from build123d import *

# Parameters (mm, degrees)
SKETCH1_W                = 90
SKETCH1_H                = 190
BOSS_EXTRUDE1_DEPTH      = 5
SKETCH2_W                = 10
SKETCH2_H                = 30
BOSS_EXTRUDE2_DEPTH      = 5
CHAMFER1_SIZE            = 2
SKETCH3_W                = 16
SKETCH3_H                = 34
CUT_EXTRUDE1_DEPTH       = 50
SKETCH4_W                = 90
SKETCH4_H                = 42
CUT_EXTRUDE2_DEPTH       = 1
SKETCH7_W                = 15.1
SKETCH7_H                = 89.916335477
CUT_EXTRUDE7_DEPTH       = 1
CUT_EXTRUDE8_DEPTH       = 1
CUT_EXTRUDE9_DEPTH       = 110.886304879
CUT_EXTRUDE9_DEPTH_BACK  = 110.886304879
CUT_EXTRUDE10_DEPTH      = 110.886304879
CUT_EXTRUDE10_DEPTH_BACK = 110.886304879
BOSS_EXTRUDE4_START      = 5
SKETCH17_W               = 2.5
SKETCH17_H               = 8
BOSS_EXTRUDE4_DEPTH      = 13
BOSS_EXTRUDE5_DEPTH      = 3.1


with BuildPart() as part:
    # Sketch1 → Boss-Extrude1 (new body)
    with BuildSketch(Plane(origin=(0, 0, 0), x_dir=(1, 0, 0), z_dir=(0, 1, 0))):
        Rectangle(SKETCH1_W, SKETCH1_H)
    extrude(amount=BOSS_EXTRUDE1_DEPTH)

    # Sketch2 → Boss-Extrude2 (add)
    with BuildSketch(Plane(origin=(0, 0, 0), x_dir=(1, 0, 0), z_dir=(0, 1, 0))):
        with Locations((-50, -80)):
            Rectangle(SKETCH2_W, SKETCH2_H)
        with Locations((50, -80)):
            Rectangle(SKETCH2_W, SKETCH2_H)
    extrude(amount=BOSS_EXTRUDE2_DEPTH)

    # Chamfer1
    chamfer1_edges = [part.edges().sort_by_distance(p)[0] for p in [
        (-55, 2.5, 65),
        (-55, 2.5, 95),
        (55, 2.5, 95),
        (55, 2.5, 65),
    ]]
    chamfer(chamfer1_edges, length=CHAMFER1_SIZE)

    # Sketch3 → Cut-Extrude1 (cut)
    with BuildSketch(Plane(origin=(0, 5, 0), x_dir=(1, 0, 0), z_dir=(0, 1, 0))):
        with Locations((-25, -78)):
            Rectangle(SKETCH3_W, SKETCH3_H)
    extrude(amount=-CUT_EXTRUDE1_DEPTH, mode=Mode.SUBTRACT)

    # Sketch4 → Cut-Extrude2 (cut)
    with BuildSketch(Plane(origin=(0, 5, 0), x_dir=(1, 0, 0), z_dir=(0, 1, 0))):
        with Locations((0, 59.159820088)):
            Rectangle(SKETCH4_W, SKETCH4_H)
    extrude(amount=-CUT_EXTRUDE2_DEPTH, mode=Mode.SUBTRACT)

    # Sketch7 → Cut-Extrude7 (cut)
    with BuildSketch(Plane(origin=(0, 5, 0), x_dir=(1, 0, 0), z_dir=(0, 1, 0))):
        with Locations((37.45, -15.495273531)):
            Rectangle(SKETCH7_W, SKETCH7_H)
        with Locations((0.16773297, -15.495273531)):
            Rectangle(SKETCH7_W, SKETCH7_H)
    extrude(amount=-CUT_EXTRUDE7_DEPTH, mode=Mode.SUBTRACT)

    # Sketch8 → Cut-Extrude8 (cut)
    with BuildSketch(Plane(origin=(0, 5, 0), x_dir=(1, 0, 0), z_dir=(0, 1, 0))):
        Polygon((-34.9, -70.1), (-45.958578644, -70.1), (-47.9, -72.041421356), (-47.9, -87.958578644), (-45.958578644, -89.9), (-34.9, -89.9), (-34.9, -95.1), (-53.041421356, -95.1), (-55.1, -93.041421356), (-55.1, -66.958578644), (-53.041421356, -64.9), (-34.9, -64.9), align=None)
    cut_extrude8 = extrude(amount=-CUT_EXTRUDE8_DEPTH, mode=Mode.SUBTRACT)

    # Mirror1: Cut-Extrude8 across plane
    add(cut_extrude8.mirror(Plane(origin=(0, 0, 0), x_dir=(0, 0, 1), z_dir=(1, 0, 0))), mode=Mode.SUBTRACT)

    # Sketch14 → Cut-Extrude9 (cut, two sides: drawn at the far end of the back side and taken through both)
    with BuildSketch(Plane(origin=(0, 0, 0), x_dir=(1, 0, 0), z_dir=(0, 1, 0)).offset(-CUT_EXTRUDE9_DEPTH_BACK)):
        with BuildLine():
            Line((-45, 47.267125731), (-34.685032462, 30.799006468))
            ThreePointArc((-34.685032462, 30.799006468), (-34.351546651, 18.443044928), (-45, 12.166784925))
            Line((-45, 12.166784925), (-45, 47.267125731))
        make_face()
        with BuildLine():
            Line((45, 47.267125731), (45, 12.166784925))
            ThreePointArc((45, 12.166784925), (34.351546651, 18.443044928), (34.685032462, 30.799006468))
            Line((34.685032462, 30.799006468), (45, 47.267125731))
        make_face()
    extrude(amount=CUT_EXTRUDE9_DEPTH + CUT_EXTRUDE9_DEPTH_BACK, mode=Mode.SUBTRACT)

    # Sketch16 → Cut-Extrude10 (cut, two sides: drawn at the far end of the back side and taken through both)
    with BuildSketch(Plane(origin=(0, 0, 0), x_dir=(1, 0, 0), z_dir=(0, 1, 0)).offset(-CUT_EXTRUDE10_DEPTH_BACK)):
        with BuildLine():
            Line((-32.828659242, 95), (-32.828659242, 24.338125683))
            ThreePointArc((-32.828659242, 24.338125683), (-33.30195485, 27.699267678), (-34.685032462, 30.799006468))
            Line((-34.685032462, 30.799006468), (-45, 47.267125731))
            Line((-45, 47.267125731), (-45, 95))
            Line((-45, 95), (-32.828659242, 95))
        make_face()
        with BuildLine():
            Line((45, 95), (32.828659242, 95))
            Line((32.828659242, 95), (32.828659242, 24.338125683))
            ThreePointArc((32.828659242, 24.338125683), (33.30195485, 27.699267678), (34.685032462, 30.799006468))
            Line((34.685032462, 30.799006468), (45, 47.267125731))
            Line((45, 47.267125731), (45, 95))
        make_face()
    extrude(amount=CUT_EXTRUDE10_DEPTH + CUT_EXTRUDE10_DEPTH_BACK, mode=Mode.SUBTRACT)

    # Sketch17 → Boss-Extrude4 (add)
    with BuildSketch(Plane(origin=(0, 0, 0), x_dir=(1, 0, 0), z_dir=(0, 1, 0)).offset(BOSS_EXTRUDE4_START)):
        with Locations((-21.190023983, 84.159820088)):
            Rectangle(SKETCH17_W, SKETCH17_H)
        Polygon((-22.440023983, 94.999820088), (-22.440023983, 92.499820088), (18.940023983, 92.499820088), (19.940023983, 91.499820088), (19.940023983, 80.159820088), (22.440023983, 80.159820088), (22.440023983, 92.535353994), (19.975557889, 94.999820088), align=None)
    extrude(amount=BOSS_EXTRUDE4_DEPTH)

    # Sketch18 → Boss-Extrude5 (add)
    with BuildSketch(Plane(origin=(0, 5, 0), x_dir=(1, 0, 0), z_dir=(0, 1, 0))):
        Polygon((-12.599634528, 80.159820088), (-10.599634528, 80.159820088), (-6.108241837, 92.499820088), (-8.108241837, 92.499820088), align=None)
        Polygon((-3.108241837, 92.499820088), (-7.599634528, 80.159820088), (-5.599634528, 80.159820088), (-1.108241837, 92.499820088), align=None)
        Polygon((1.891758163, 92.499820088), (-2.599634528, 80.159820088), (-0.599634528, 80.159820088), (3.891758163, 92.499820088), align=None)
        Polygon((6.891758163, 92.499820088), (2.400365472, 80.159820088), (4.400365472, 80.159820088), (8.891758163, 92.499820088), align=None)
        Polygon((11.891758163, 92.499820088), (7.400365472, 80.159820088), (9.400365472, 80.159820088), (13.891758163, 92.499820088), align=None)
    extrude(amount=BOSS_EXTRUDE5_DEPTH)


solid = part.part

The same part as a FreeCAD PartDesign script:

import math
import FreeCAD as App
import Part
import Sketcher
Q = App.Units.Quantity


def edges_at(feature, points):
    """Names of the edges that pass closest to the given points."""
    edges = feature.Shape.Edges
    near = lambda p: min(range(len(edges)), key=lambda i: edges[i].distToShape(Part.Vertex(*p))[0])
    return sorted({f"Edge{near(p) + 1}" for p in points})

doc = App.newDocument("Part")
body = doc.addObject("PartDesign::Body", "Body")

sketch1 = body.newObject("Sketcher::SketchObject", "Sketch")
sketch1.AttachmentSupport = (doc.getObject("XZ_Plane"), [""])
sketch1.MapMode = "FlatFace"
sketch1.addGeometry(Part.LineSegment(App.Vector(-45, -95, 0), App.Vector(-45, 95, 0)), False)
sketch1.addGeometry(Part.LineSegment(App.Vector(-45, 95, 0), App.Vector(45, 95, 0)), False)
sketch1.addGeometry(Part.LineSegment(App.Vector(45, 95, 0), App.Vector(45, -95, 0)), False)
sketch1.addGeometry(Part.LineSegment(App.Vector(45, -95, 0), App.Vector(-45, -95, 0)), False)
sketch1.addConstraint(Sketcher.Constraint("Coincident", 0, 2, 1, 1))
sketch1.addConstraint(Sketcher.Constraint("Coincident", 1, 2, 2, 1))
sketch1.addConstraint(Sketcher.Constraint("Coincident", 2, 2, 3, 1))
sketch1.addConstraint(Sketcher.Constraint("Coincident", 3, 2, 0, 1))
sketch1.addConstraint(Sketcher.Constraint("Vertical", 0))
sketch1.addConstraint(Sketcher.Constraint("Horizontal", 1))
sketch1.addConstraint(Sketcher.Constraint("Vertical", 2))
sketch1.addConstraint(Sketcher.Constraint("Horizontal", 3))
sketch1.addConstraint(Sketcher.Constraint("Symmetric", 0, 2, 2, 2, -1, 1))
sketch1.addConstraint(Sketcher.Constraint("DistanceX", 1, 1, 1, 2, Q("90 mm")))
sketch1.addConstraint(Sketcher.Constraint("DistanceY", 0, 1, 0, 2, Q("190 mm")))
pad1 = body.newObject("PartDesign::Pad", "Pad")
pad1.Profile = sketch1
pad1.Length = 5
pad1.Reversed = True

sketch2 = body.newObject("Sketcher::SketchObject", "Sketch001")
sketch2.AttachmentSupport = (doc.getObject("XZ_Plane"), [""])
sketch2.MapMode = "FlatFace"
sketch2.addGeometry(Part.LineSegment(App.Vector(-55, 65, 0), App.Vector(-55, 95, 0)), False)
sketch2.addGeometry(Part.LineSegment(App.Vector(-55, 95, 0), App.Vector(-45, 95, 0)), False)
sketch2.addGeometry(Part.LineSegment(App.Vector(-45, 95, 0), App.Vector(-45, 65, 0)), False)
sketch2.addGeometry(Part.LineSegment(App.Vector(-45, 65, 0), App.Vector(-55, 65, 0)), False)
sketch2.addGeometry(Part.LineSegment(App.Vector(45, 65, 0), App.Vector(45, 95, 0)), False)
sketch2.addGeometry(Part.LineSegment(App.Vector(45, 95, 0), App.Vector(55, 95, 0)), False)
sketch2.addGeometry(Part.LineSegment(App.Vector(55, 95, 0), App.Vector(55, 65, 0)), False)
sketch2.addGeometry(Part.LineSegment(App.Vector(55, 65, 0), App.Vector(45, 65, 0)), False)
sketch2.addConstraint(Sketcher.Constraint("Coincident", 0, 2, 1, 1))
sketch2.addConstraint(Sketcher.Constraint("Coincident", 1, 2, 2, 1))
sketch2.addConstraint(Sketcher.Constraint("Coincident", 2, 2, 3, 1))
sketch2.addConstraint(Sketcher.Constraint("Coincident", 3, 2, 0, 1))
sketch2.addConstraint(Sketcher.Constraint("Coincident", 4, 2, 5, 1))
sketch2.addConstraint(Sketcher.Constraint("Coincident", 5, 2, 6, 1))
sketch2.addConstraint(Sketcher.Constraint("Coincident", 6, 2, 7, 1))
sketch2.addConstraint(Sketcher.Constraint("Coincident", 7, 2, 4, 1))
sketch2.addConstraint(Sketcher.Constraint("Vertical", 0))
sketch2.addConstraint(Sketcher.Constraint("Horizontal", 1))
sketch2.addConstraint(Sketcher.Constraint("Vertical", 2))
sketch2.addConstraint(Sketcher.Constraint("Horizontal", 3))
sketch2.addConstraint(Sketcher.Constraint("Vertical", 4))
sketch2.addConstraint(Sketcher.Constraint("Horizontal", 5))
sketch2.addConstraint(Sketcher.Constraint("Vertical", 6))
sketch2.addConstraint(Sketcher.Constraint("Horizontal", 7))
sketch2.addConstraint(Sketcher.Constraint("Symmetric", 1, 2, 4, 2, -2))
sketch2.addConstraint(Sketcher.Constraint("Symmetric", 3, 2, 6, 2, -2))
sketch2.addConstraint(Sketcher.Constraint("DistanceX", 1, 1, 1, 2, Q("10 mm")))
sketch2.addConstraint(Sketcher.Constraint("DistanceY", 0, 1, 0, 2, Q("30 mm")))
sketch2.addConstraint(Sketcher.Constraint("DistanceX", 0, 2, -1, 1, Q("55 mm")))
sketch2.addConstraint(Sketcher.Constraint("DistanceY", -1, 1, 0, 2, Q("95 mm")))
pad2 = body.newObject("PartDesign::Pad", "Pad001")
pad2.Profile = sketch2
pad2.Length = 5
pad2.Reversed = True
doc.recompute()

chamfer = body.newObject("PartDesign::Chamfer", "Chamfer")
chamfer.Base = (pad2, edges_at(pad2, [
    (-55, 2.5, 65),
    (-55, 2.5, 95),
    (55, 2.5, 95),
    (55, 2.5, 65),
]))
chamfer.Size = 2

sketch3 = body.newObject("Sketcher::SketchObject", "Sketch002")
sketch3.AttachmentSupport = (doc.getObject("XZ_Plane"), [""])
sketch3.MapMode = "FlatFace"
sketch3.AttachmentOffset = App.Placement(App.Vector(0, 0, -5), App.Rotation())
sketch3.addGeometry(Part.LineSegment(App.Vector(-33, 61, 0), App.Vector(-33, 95, 0)), False)
sketch3.addGeometry(Part.LineSegment(App.Vector(-33, 95, 0), App.Vector(-17, 95, 0)), False)
sketch3.addGeometry(Part.LineSegment(App.Vector(-17, 95, 0), App.Vector(-17, 61, 0)), False)
sketch3.addGeometry(Part.LineSegment(App.Vector(-17, 61, 0), App.Vector(-33, 61, 0)), False)
sketch3.addConstraint(Sketcher.Constraint("Coincident", 0, 2, 1, 1))
sketch3.addConstraint(Sketcher.Constraint("Coincident", 1, 2, 2, 1))
sketch3.addConstraint(Sketcher.Constraint("Coincident", 2, 2, 3, 1))
sketch3.addConstraint(Sketcher.Constraint("Coincident", 3, 2, 0, 1))
sketch3.addConstraint(Sketcher.Constraint("Vertical", 0))
sketch3.addConstraint(Sketcher.Constraint("Horizontal", 1))
sketch3.addConstraint(Sketcher.Constraint("Vertical", 2))
sketch3.addConstraint(Sketcher.Constraint("Horizontal", 3))
sketch3.addConstraint(Sketcher.Constraint("DistanceX", 1, 1, 1, 2, Q("16 mm")))
sketch3.addConstraint(Sketcher.Constraint("DistanceY", 0, 1, 0, 2, Q("34 mm")))
sketch3.addConstraint(Sketcher.Constraint("DistanceX", 0, 2, -1, 1, Q("33 mm")))
sketch3.addConstraint(Sketcher.Constraint("DistanceY", -1, 1, 0, 2, Q("95 mm")))
pocket1 = body.newObject("PartDesign::Pocket", "Pocket")
pocket1.Profile = sketch3
pocket1.Length = 50
pocket1.Reversed = True

sketch4 = body.newObject("Sketcher::SketchObject", "Sketch003")
sketch4.AttachmentSupport = (doc.getObject("XZ_Plane"), [""])
sketch4.MapMode = "FlatFace"
sketch4.AttachmentOffset = App.Placement(App.Vector(0, 0, -5), App.Rotation())
sketch4.addGeometry(Part.LineSegment(App.Vector(-45, -80.15982, 0), App.Vector(-45, -38.15982, 0)), False)
sketch4.addGeometry(Part.LineSegment(App.Vector(-45, -38.15982, 0), App.Vector(45, -38.15982, 0)), False)
sketch4.addGeometry(Part.LineSegment(App.Vector(45, -38.15982, 0), App.Vector(45, -80.15982, 0)), False)
sketch4.addGeometry(Part.LineSegment(App.Vector(45, -80.15982, 0), App.Vector(-45, -80.15982, 0)), False)
sketch4.addConstraint(Sketcher.Constraint("Coincident", 0, 2, 1, 1))
sketch4.addConstraint(Sketcher.Constraint("Coincident", 1, 2, 2, 1))
sketch4.addConstraint(Sketcher.Constraint("Coincident", 2, 2, 3, 1))
sketch4.addConstraint(Sketcher.Constraint("Coincident", 3, 2, 0, 1))
sketch4.addConstraint(Sketcher.Constraint("Vertical", 0))
sketch4.addConstraint(Sketcher.Constraint("Horizontal", 1))
sketch4.addConstraint(Sketcher.Constraint("Vertical", 2))
sketch4.addConstraint(Sketcher.Constraint("Horizontal", 3))
sketch4.addConstraint(Sketcher.Constraint("DistanceX", 1, 1, 1, 2, Q("90 mm")))
sketch4.addConstraint(Sketcher.Constraint("DistanceY", 0, 1, 0, 2, Q("42 mm")))
sketch4.addConstraint(Sketcher.Constraint("DistanceX", 0, 2, -1, 1, Q("45 mm")))
sketch4.addConstraint(Sketcher.Constraint("DistanceY", 0, 2, -1, 1, Q("38.15982 mm")))
pocket2 = body.newObject("PartDesign::Pocket", "Pocket001")
pocket2.Profile = sketch4
pocket2.Length = 1
pocket2.Reversed = True

sketch5 = body.newObject("Sketcher::SketchObject", "Sketch004")
sketch5.AttachmentSupport = (doc.getObject("XZ_Plane"), [""])
sketch5.MapMode = "FlatFace"
sketch5.AttachmentOffset = App.Placement(App.Vector(0, 0, -5), App.Rotation())
sketch5.addGeometry(Part.LineSegment(App.Vector(29.9, -29.462894, 0), App.Vector(29.9, 60.453441, 0)), False)
sketch5.addGeometry(Part.LineSegment(App.Vector(29.9, 60.453441, 0), App.Vector(45, 60.453441, 0)), False)
sketch5.addGeometry(Part.LineSegment(App.Vector(45, 60.453441, 0), App.Vector(45, -29.462894, 0)), False)
sketch5.addGeometry(Part.LineSegment(App.Vector(45, -29.462894, 0), App.Vector(29.9, -29.462894, 0)), False)
sketch5.addGeometry(Part.LineSegment(App.Vector(-7.382267, -29.462894, 0), App.Vector(-7.382267, 60.453441, 0)), False)
sketch5.addGeometry(Part.LineSegment(App.Vector(-7.382267, 60.453441, 0), App.Vector(7.717733, 60.453441, 0)), False)
sketch5.addGeometry(Part.LineSegment(App.Vector(7.717733, 60.453441, 0), App.Vector(7.717733, -29.462894, 0)), False)
sketch5.addGeometry(Part.LineSegment(App.Vector(7.717733, -29.462894, 0), App.Vector(-7.382267, -29.462894, 0)), False)
sketch5.addConstraint(Sketcher.Constraint("Coincident", 0, 2, 1, 1))
sketch5.addConstraint(Sketcher.Constraint("Coincident", 1, 2, 2, 1))
sketch5.addConstraint(Sketcher.Constraint("Coincident", 2, 2, 3, 1))
sketch5.addConstraint(Sketcher.Constraint("Coincident", 3, 2, 0, 1))
sketch5.addConstraint(Sketcher.Constraint("Coincident", 4, 2, 5, 1))
sketch5.addConstraint(Sketcher.Constraint("Coincident", 5, 2, 6, 1))
sketch5.addConstraint(Sketcher.Constraint("Coincident", 6, 2, 7, 1))
sketch5.addConstraint(Sketcher.Constraint("Coincident", 7, 2, 4, 1))
sketch5.addConstraint(Sketcher.Constraint("Vertical", 0))
sketch5.addConstraint(Sketcher.Constraint("Horizontal", 1))
sketch5.addConstraint(Sketcher.Constraint("Vertical", 2))
sketch5.addConstraint(Sketcher.Constraint("Horizontal", 3))
sketch5.addConstraint(Sketcher.Constraint("Vertical", 4))
sketch5.addConstraint(Sketcher.Constraint("Horizontal", 5))
sketch5.addConstraint(Sketcher.Constraint("Vertical", 6))
sketch5.addConstraint(Sketcher.Constraint("Horizontal", 7))
sketch5.addConstraint(Sketcher.Constraint("Horizontal", 1, 2, 4, 2))
sketch5.addConstraint(Sketcher.Constraint("Horizontal", 3, 2, 6, 2))
sketch5.addConstraint(Sketcher.Constraint("Equal", 3, 5))
sketch5.addConstraint(Sketcher.Constraint("DistanceX", 1, 1, 1, 2, Q("15.1 mm")))
sketch5.addConstraint(Sketcher.Constraint("DistanceX", -1, 1, 1, 2, Q("45 mm")))
sketch5.addConstraint(Sketcher.Constraint("DistanceY", 0, 1, 0, 2, Q("89.916335 mm")))
sketch5.addConstraint(Sketcher.Constraint("DistanceY", -1, 1, 0, 2, Q("60.453441 mm")))
sketch5.addConstraint(Sketcher.Constraint("DistanceX", 4, 2, -1, 1, Q("7.382267 mm")))
pocket3 = body.newObject("PartDesign::Pocket", "Pocket002")
pocket3.Profile = sketch5
pocket3.Length = 1
pocket3.Reversed = True

sketch6 = body.newObject("Sketcher::SketchObject", "Sketch005")
sketch6.AttachmentSupport = (doc.getObject("XZ_Plane"), [""])
sketch6.MapMode = "FlatFace"
sketch6.AttachmentOffset = App.Placement(App.Vector(0, 0, -5), App.Rotation())
sketch6.addGeometry(Part.LineSegment(App.Vector(-45.958579, 70.1, 0), App.Vector(-34.9, 70.1, 0)), False)
sketch6.addGeometry(Part.LineSegment(App.Vector(-34.9, 70.1, 0), App.Vector(-34.9, 64.9, 0)), False)
sketch6.addGeometry(Part.LineSegment(App.Vector(-34.9, 64.9, 0), App.Vector(-53.041421, 64.9, 0)), False)
sketch6.addGeometry(Part.LineSegment(App.Vector(-53.041421, 64.9, 0), App.Vector(-55.1, 66.958579, 0)), False)
sketch6.addGeometry(Part.LineSegment(App.Vector(-55.1, 66.958579, 0), App.Vector(-55.1, 93.041421, 0)), False)
sketch6.addGeometry(Part.LineSegment(App.Vector(-55.1, 93.041421, 0), App.Vector(-53.041421, 95.1, 0)), False)
sketch6.addGeometry(Part.LineSegment(App.Vector(-53.041421, 95.1, 0), App.Vector(-34.9, 95.1, 0)), False)
sketch6.addGeometry(Part.LineSegment(App.Vector(-34.9, 95.1, 0), App.Vector(-34.9, 89.9, 0)), False)
sketch6.addGeometry(Part.LineSegment(App.Vector(-34.9, 89.9, 0), App.Vector(-45.958579, 89.9, 0)), False)
sketch6.addGeometry(Part.LineSegment(App.Vector(-45.958579, 89.9, 0), App.Vector(-47.9, 87.958579, 0)), False)
sketch6.addGeometry(Part.LineSegment(App.Vector(-47.9, 87.958579, 0), App.Vector(-47.9, 72.041421, 0)), False)
sketch6.addGeometry(Part.LineSegment(App.Vector(-47.9, 72.041421, 0), App.Vector(-45.958579, 70.1, 0)), False)
sketch6.addConstraint(Sketcher.Constraint("Coincident", 0, 2, 1, 1))
sketch6.addConstraint(Sketcher.Constraint("Coincident", 1, 2, 2, 1))
sketch6.addConstraint(Sketcher.Constraint("Coincident", 2, 2, 3, 1))
sketch6.addConstraint(Sketcher.Constraint("Coincident", 3, 2, 4, 1))
sketch6.addConstraint(Sketcher.Constraint("Coincident", 4, 2, 5, 1))
sketch6.addConstraint(Sketcher.Constraint("Coincident", 5, 2, 6, 1))
sketch6.addConstraint(Sketcher.Constraint("Coincident", 6, 2, 7, 1))
sketch6.addConstraint(Sketcher.Constraint("Coincident", 7, 2, 8, 1))
sketch6.addConstraint(Sketcher.Constraint("Coincident", 8, 2, 9, 1))
sketch6.addConstraint(Sketcher.Constraint("Coincident", 9, 2, 10, 1))
sketch6.addConstraint(Sketcher.Constraint("Coincident", 10, 2, 11, 1))
sketch6.addConstraint(Sketcher.Constraint("Coincident", 11, 2, 0, 1))
sketch6.addConstraint(Sketcher.Constraint("Horizontal", 0))
sketch6.addConstraint(Sketcher.Constraint("Vertical", 1))
sketch6.addConstraint(Sketcher.Constraint("Horizontal", 2))
sketch6.addConstraint(Sketcher.Constraint("Vertical", 4))
sketch6.addConstraint(Sketcher.Constraint("Horizontal", 6))
sketch6.addConstraint(Sketcher.Constraint("Vertical", 7))
sketch6.addConstraint(Sketcher.Constraint("Horizontal", 8))
sketch6.addConstraint(Sketcher.Constraint("Vertical", 10))
sketch6.addConstraint(Sketcher.Constraint("Perpendicular", 3, 5))
sketch6.addConstraint(Sketcher.Constraint("Parallel", 5, 9))
sketch6.addConstraint(Sketcher.Constraint("Perpendicular", 9, 11))
sketch6.addConstraint(Sketcher.Constraint("Vertical", 2, 2, 5, 2))
sketch6.addConstraint(Sketcher.Constraint("Vertical", 1, 2, 6, 2))
sketch6.addConstraint(Sketcher.Constraint("Vertical", 8, 2, 11, 2))
sketch6.addConstraint(Sketcher.Constraint("Equal", 1, 7))
sketch6.addConstraint(Sketcher.Constraint("Equal", 3, 5))
sketch6.addConstraint(Sketcher.Constraint("DistanceY", 1, 2, 1, 1, Q("5.2 mm")))
sketch6.addConstraint(Sketcher.Constraint("DistanceY", 0, 2, 5, 2, Q("25 mm")))
sketch6.addConstraint(Sketcher.Constraint("DistanceX", 9, 2, 7, 2, Q("13 mm")))
sketch6.addConstraint(Sketcher.Constraint("DistanceX", 0, 2, -1, 1, Q("34.9 mm")))
sketch6.addConstraint(Sketcher.Constraint("DistanceY", -1, 1, 0, 2, Q("70.1 mm")))
sketch6.addConstraint(Sketcher.Constraint("DistanceX", 3, 2, -1, 1, Q("55.1 mm")))
sketch6.addConstraint(Sketcher.Constraint("DistanceX", 0, 1, 0, 2, Q("11.058579 mm")))
sketch6.addConstraint(Sketcher.Constraint("DistanceX", 2, 2, 2, 1, Q("18.141421 mm")))
pocket4 = body.newObject("PartDesign::Pocket", "Pocket003")
pocket4.Profile = sketch6
pocket4.Length = 1
pocket4.Reversed = True
doc.recompute()

mirrored = body.newObject("PartDesign::Mirrored", "Mirrored")
mirrored.Originals = [pocket4]
mirrored.MirrorPlane = (doc.getObject("YZ_Plane"), [""])
body.Tip = mirrored

sketch7 = body.newObject("Sketcher::SketchObject", "Sketch006")
sketch7.AttachmentSupport = (doc.getObject("XZ_Plane"), [""])
sketch7.MapMode = "FlatFace"
sketch7.addGeometry(Part.LineSegment(App.Vector(-34.685032, -30.799006, 0), App.Vector(-45, -47.267126, 0)), False)
sketch7.addGeometry(Part.LineSegment(App.Vector(-45, -47.267126, 0), App.Vector(-45, -12.166785, 0)), False)
sketch7.addGeometry(Part.ArcOfCircle(Part.Circle(App.Vector(-45, -24.338126, 0), App.Vector(0, 0, 1), 12.171341), math.radians(-32.061374), math.radians(90)), False)
sketch7.addGeometry(Part.LineSegment(App.Vector(45, -12.166785, 0), App.Vector(45, -47.267126, 0)), False)
sketch7.addGeometry(Part.LineSegment(App.Vector(45, -47.267126, 0), App.Vector(34.685032, -30.799006, 0)), False)
sketch7.addGeometry(Part.ArcOfCircle(Part.Circle(App.Vector(45, -24.338126, 0), App.Vector(0, 0, 1), 12.171341), math.radians(90), math.radians(212.061374)), False)
sketch7.addConstraint(Sketcher.Constraint("Coincident", 0, 2, 1, 1))
sketch7.addConstraint(Sketcher.Constraint("Coincident", 1, 2, 2, 2))
sketch7.addConstraint(Sketcher.Constraint("Tangent", 2, 1, 0, 1))
sketch7.addConstraint(Sketcher.Constraint("Coincident", 3, 2, 4, 1))
sketch7.addConstraint(Sketcher.Constraint("Tangent", 4, 2, 5, 2))
sketch7.addConstraint(Sketcher.Constraint("Coincident", 5, 1, 3, 1))
sketch7.addConstraint(Sketcher.Constraint("Vertical", 1))
sketch7.addConstraint(Sketcher.Constraint("Vertical", 3))
sketch7.addConstraint(Sketcher.Constraint("Equal", 2, 5))
sketch7.addConstraint(Sketcher.Constraint("Symmetric", 2, 3, 5, 3, -2))
sketch7.addConstraint(Sketcher.Constraint("Symmetric", 0, 2, 3, 2, -2))
sketch7.addConstraint(Sketcher.Constraint("Vertical", 2, 3, 0, 2))
sketch7.addConstraint(Sketcher.Constraint("DistanceX", 2, 3, -1, 1, Q("45 mm")))
sketch7.addConstraint(Sketcher.Constraint("Radius", 2, Q("12.171341 mm")))
sketch7.addConstraint(Sketcher.Constraint("DistanceY", 0, 2, 2, 3, Q("22.929 mm")))
sketch7.addConstraint(Sketcher.Constraint("DistanceY", 2, 3, -1, 1, Q("24.338126 mm")))
pocket5 = body.newObject("PartDesign::Pocket", "Pocket004")
pocket5.Profile = sketch7
pocket5.Type = "ThroughAll"
pocket5.Midplane = True

sketch8 = body.newObject("Sketcher::SketchObject", "Sketch007")
sketch8.AttachmentSupport = (doc.getObject("XZ_Plane"), [""])
sketch8.MapMode = "FlatFace"
sketch8.addGeometry(Part.LineSegment(App.Vector(-32.828659, -24.338126, 0), App.Vector(-32.828659, -95, 0)), False)
sketch8.addGeometry(Part.LineSegment(App.Vector(-32.828659, -95, 0), App.Vector(-45, -95, 0)), False)
sketch8.addGeometry(Part.LineSegment(App.Vector(-45, -95, 0), App.Vector(-45, -47.267126, 0)), False)
sketch8.addGeometry(Part.LineSegment(App.Vector(-45, -47.267126, 0), App.Vector(-34.685032, -30.799006, 0)), False)
sketch8.addGeometry(Part.ArcOfCircle(Part.Circle(App.Vector(-45, -24.338126, 0), App.Vector(0, 0, 1), 12.171341), math.radians(-32.061374), math.radians(0)), False)
sketch8.addGeometry(Part.LineSegment(App.Vector(45, -95, 0), App.Vector(32.828659, -95, 0)), False)
sketch8.addGeometry(Part.LineSegment(App.Vector(32.828659, -95, 0), App.Vector(32.828659, -24.338126, 0)), False)
sketch8.addGeometry(Part.ArcOfCircle(Part.Circle(App.Vector(45, -24.338126, 0), App.Vector(0, 0, 1), 12.171341), math.radians(180), math.radians(212.061374)), False)
sketch8.addGeometry(Part.LineSegment(App.Vector(34.685032, -30.799006, 0), App.Vector(45, -47.267126, 0)), False)
sketch8.addGeometry(Part.LineSegment(App.Vector(45, -47.267126, 0), App.Vector(45, -95, 0)), False)
sketch8.addConstraint(Sketcher.Constraint("Coincident", 0, 2, 1, 1))
sketch8.addConstraint(Sketcher.Constraint("Coincident", 1, 2, 2, 1))
sketch8.addConstraint(Sketcher.Constraint("Coincident", 2, 2, 3, 1))
sketch8.addConstraint(Sketcher.Constraint("Tangent", 3, 2, 4, 1))
sketch8.addConstraint(Sketcher.Constraint("Tangent", 4, 2, 0, 1))
sketch8.addConstraint(Sketcher.Constraint("Coincident", 5, 2, 6, 1))
sketch8.addConstraint(Sketcher.Constraint("Tangent", 6, 2, 7, 1))
sketch8.addConstraint(Sketcher.Constraint("Tangent", 7, 2, 8, 1))
sketch8.addConstraint(Sketcher.Constraint("Coincident", 8, 2, 9, 1))
sketch8.addConstraint(Sketcher.Constraint("Coincident", 9, 2, 5, 1))
sketch8.addConstraint(Sketcher.Constraint("Vertical", 0))
sketch8.addConstraint(Sketcher.Constraint("Horizontal", 1))
sketch8.addConstraint(Sketcher.Constraint("Vertical", 2))
sketch8.addConstraint(Sketcher.Constraint("Horizontal", 5))
sketch8.addConstraint(Sketcher.Constraint("Vertical", 6))
sketch8.addConstraint(Sketcher.Constraint("Vertical", 9))
sketch8.addConstraint(Sketcher.Constraint("Equal", 4, 7))
sketch8.addConstraint(Sketcher.Constraint("Symmetric", 4, 3, 7, 3, -2))
sketch8.addConstraint(Sketcher.Constraint("Symmetric", 2, 2, 8, 2, -2))
sketch8.addConstraint(Sketcher.Constraint("Horizontal", 1, 2, 5, 2))
sketch8.addConstraint(Sketcher.Constraint("Vertical", 4, 3, 1, 2))
sketch8.addConstraint(Sketcher.Constraint("DistanceX", 4, 3, -1, 1, Q("45 mm")))
sketch8.addConstraint(Sketcher.Constraint("DistanceY", 0, 2, -1, 1, Q("95 mm")))
sketch8.addConstraint(Sketcher.Constraint("Radius", 4, Q("12.171341 mm")))
sketch8.addConstraint(Sketcher.Constraint("DistanceY", 2, 2, 4, 3, Q("22.929 mm")))
sketch8.addConstraint(Sketcher.Constraint("DistanceY", 0, 2, 0, 1, Q("70.661874 mm")))
pocket6 = body.newObject("PartDesign::Pocket", "Pocket005")
pocket6.Profile = sketch8
pocket6.Type = "ThroughAll"
pocket6.Midplane = True

sketch9 = body.newObject("Sketcher::SketchObject", "Sketch008")
sketch9.AttachmentSupport = (doc.getObject("XZ_Plane"), [""])
sketch9.MapMode = "FlatFace"
sketch9.AttachmentOffset = App.Placement(App.Vector(0, 0, -5), App.Rotation())
sketch9.addGeometry(Part.LineSegment(App.Vector(-22.440024, -88.15982, 0), App.Vector(-22.440024, -80.15982, 0)), False)
sketch9.addGeometry(Part.LineSegment(App.Vector(-22.440024, -80.15982, 0), App.Vector(-19.940024, -80.15982, 0)), False)
sketch9.addGeometry(Part.LineSegment(App.Vector(-19.940024, -80.15982, 0), App.Vector(-19.940024, -88.15982, 0)), False)
sketch9.addGeometry(Part.LineSegment(App.Vector(-19.940024, -88.15982, 0), App.Vector(-22.440024, -88.15982, 0)), False)
sketch9.addGeometry(Part.LineSegment(App.Vector(-22.440024, -94.99982, 0), App.Vector(-22.440024, -92.49982, 0)), False)
sketch9.addGeometry(Part.LineSegment(App.Vector(-22.440024, -92.49982, 0), App.Vector(18.940024, -92.49982, 0)), False)
sketch9.addGeometry(Part.LineSegment(App.Vector(18.940024, -92.49982, 0), App.Vector(19.940024, -91.49982, 0)), False)
sketch9.addGeometry(Part.LineSegment(App.Vector(19.940024, -91.49982, 0), App.Vector(19.940024, -80.15982, 0)), False)
sketch9.addGeometry(Part.LineSegment(App.Vector(19.940024, -80.15982, 0), App.Vector(22.440024, -80.15982, 0)), False)
sketch9.addGeometry(Part.LineSegment(App.Vector(22.440024, -80.15982, 0), App.Vector(22.440024, -92.535354, 0)), False)
sketch9.addGeometry(Part.LineSegment(App.Vector(22.440024, -92.535354, 0), App.Vector(19.975558, -94.99982, 0)), False)
sketch9.addGeometry(Part.LineSegment(App.Vector(19.975558, -94.99982, 0), App.Vector(-22.440024, -94.99982, 0)), False)
sketch9.addConstraint(Sketcher.Constraint("Coincident", 0, 2, 1, 1))
sketch9.addConstraint(Sketcher.Constraint("Coincident", 1, 2, 2, 1))
sketch9.addConstraint(Sketcher.Constraint("Coincident", 2, 2, 3, 1))
sketch9.addConstraint(Sketcher.Constraint("Coincident", 3, 2, 0, 1))
sketch9.addConstraint(Sketcher.Constraint("Coincident", 4, 2, 5, 1))
sketch9.addConstraint(Sketcher.Constraint("Coincident", 5, 2, 6, 1))
sketch9.addConstraint(Sketcher.Constraint("Coincident", 6, 2, 7, 1))
sketch9.addConstraint(Sketcher.Constraint("Coincident", 7, 2, 8, 1))
sketch9.addConstraint(Sketcher.Constraint("Coincident", 8, 2, 9, 1))
sketch9.addConstraint(Sketcher.Constraint("Coincident", 9, 2, 10, 1))
sketch9.addConstraint(Sketcher.Constraint("Coincident", 10, 2, 11, 1))
sketch9.addConstraint(Sketcher.Constraint("Coincident", 11, 2, 4, 1))
sketch9.addConstraint(Sketcher.Constraint("Vertical", 0))
sketch9.addConstraint(Sketcher.Constraint("Horizontal", 1))
sketch9.addConstraint(Sketcher.Constraint("Vertical", 2))
sketch9.addConstraint(Sketcher.Constraint("Horizontal", 3))
sketch9.addConstraint(Sketcher.Constraint("Vertical", 4))
sketch9.addConstraint(Sketcher.Constraint("Horizontal", 5))
sketch9.addConstraint(Sketcher.Constraint("Vertical", 7))
sketch9.addConstraint(Sketcher.Constraint("Horizontal", 8))
sketch9.addConstraint(Sketcher.Constraint("Vertical", 9))
sketch9.addConstraint(Sketcher.Constraint("Horizontal", 11))
sketch9.addConstraint(Sketcher.Constraint("Symmetric", 1, 2, 7, 2, -2))
sketch9.addConstraint(Sketcher.Constraint("Parallel", 6, 10))
sketch9.addConstraint(Sketcher.Constraint("Vertical", 3, 2, 4, 2))
sketch9.addConstraint(Sketcher.Constraint("Equal", 3, 8))
sketch9.addConstraint(Sketcher.Constraint("Equal", 8, 4))
sketch9.addConstraint(Sketcher.Constraint("DistanceY", 0, 1, 0, 2, Q("8 mm")))
sketch9.addConstraint(Sketcher.Constraint("Angle", 6, Q("45 deg")))
sketch9.addConstraint(Sketcher.Constraint("DistanceX", 1, 1, 1, 2, Q("2.5 mm")))
sketch9.addConstraint(Sketcher.Constraint("DistanceX", 5, 2, 6, 2, Q("1 mm")))
sketch9.addConstraint(Sketcher.Constraint("DistanceY", 7, 1, 7, 2, Q("11.34 mm")))
sketch9.addConstraint(Sketcher.Constraint("DistanceX", 11, 2, 11, 1, Q("42.415582 mm")))
sketch9.addConstraint(Sketcher.Constraint("Distance", 10, Q("3.485281 mm")))
sketch9.addConstraint(Sketcher.Constraint("DistanceY", 0, 2, -1, 1, Q("80.15982 mm")))
pad3 = body.newObject("PartDesign::Pad", "Pad002")
pad3.Profile = sketch9
pad3.Length = 13
pad3.Reversed = True

sketch10 = body.newObject("Sketcher::SketchObject", "Sketch009")
sketch10.AttachmentSupport = (doc.getObject("XZ_Plane"), [""])
sketch10.MapMode = "FlatFace"
sketch10.AttachmentOffset = App.Placement(App.Vector(0, 0, -5), App.Rotation())
sketch10.addGeometry(Part.LineSegment(App.Vector(-12.599635, -80.15982, 0), App.Vector(-10.599635, -80.15982, 0)), False)
sketch10.addGeometry(Part.LineSegment(App.Vector(-10.599635, -80.15982, 0), App.Vector(-6.108242, -92.49982, 0)), False)
sketch10.addGeometry(Part.LineSegment(App.Vector(-6.108242, -92.49982, 0), App.Vector(-8.108242, -92.49982, 0)), False)
sketch10.addGeometry(Part.LineSegment(App.Vector(-8.108242, -92.49982, 0), App.Vector(-12.599635, -80.15982, 0)), False)
sketch10.addGeometry(Part.LineSegment(App.Vector(-3.108242, -92.49982, 0), App.Vector(-7.599635, -80.15982, 0)), False)
sketch10.addGeometry(Part.LineSegment(App.Vector(-7.599635, -80.15982, 0), App.Vector(-5.599635, -80.15982, 0)), False)
sketch10.addGeometry(Part.LineSegment(App.Vector(-5.599635, -80.15982, 0), App.Vector(-1.108242, -92.49982, 0)), False)
sketch10.addGeometry(Part.LineSegment(App.Vector(-1.108242, -92.49982, 0), App.Vector(-3.108242, -92.49982, 0)), False)
sketch10.addGeometry(Part.LineSegment(App.Vector(1.891758, -92.49982, 0), App.Vector(-2.599635, -80.15982, 0)), False)
sketch10.addGeometry(Part.LineSegment(App.Vector(-2.599635, -80.15982, 0), App.Vector(-0.599635, -80.15982, 0)), False)
sketch10.addGeometry(Part.LineSegment(App.Vector(-0.599635, -80.15982, 0), App.Vector(3.891758, -92.49982, 0)), False)
sketch10.addGeometry(Part.LineSegment(App.Vector(3.891758, -92.49982, 0), App.Vector(1.891758, -92.49982, 0)), False)
sketch10.addGeometry(Part.LineSegment(App.Vector(6.891758, -92.49982, 0), App.Vector(2.400365, -80.15982, 0)), False)
sketch10.addGeometry(Part.LineSegment(App.Vector(2.400365, -80.15982, 0), App.Vector(4.400365, -80.15982, 0)), False)
sketch10.addGeometry(Part.LineSegment(App.Vector(4.400365, -80.15982, 0), App.Vector(8.891758, -92.49982, 0)), False)
sketch10.addGeometry(Part.LineSegment(App.Vector(8.891758, -92.49982, 0), App.Vector(6.891758, -92.49982, 0)), False)
sketch10.addGeometry(Part.LineSegment(App.Vector(11.891758, -92.49982, 0), App.Vector(7.400365, -80.15982, 0)), False)
sketch10.addGeometry(Part.LineSegment(App.Vector(7.400365, -80.15982, 0), App.Vector(9.400365, -80.15982, 0)), False)
sketch10.addGeometry(Part.LineSegment(App.Vector(9.400365, -80.15982, 0), App.Vector(13.891758, -92.49982, 0)), False)
sketch10.addGeometry(Part.LineSegment(App.Vector(13.891758, -92.49982, 0), App.Vector(11.891758, -92.49982, 0)), False)
sketch10.addConstraint(Sketcher.Constraint("Coincident", 0, 2, 1, 1))
sketch10.addConstraint(Sketcher.Constraint("Coincident", 1, 2, 2, 1))
sketch10.addConstraint(Sketcher.Constraint("Coincident", 2, 2, 3, 1))
sketch10.addConstraint(Sketcher.Constraint("Coincident", 3, 2, 0, 1))
sketch10.addConstraint(Sketcher.Constraint("Coincident", 4, 2, 5, 1))
sketch10.addConstraint(Sketcher.Constraint("Coincident", 5, 2, 6, 1))
sketch10.addConstraint(Sketcher.Constraint("Coincident", 6, 2, 7, 1))
sketch10.addConstraint(Sketcher.Constraint("Coincident", 7, 2, 4, 1))
sketch10.addConstraint(Sketcher.Constraint("Coincident", 8, 2, 9, 1))
sketch10.addConstraint(Sketcher.Constraint("Coincident", 9, 2, 10, 1))
sketch10.addConstraint(Sketcher.Constraint("Coincident", 10, 2, 11, 1))
sketch10.addConstraint(Sketcher.Constraint("Coincident", 11, 2, 8, 1))
sketch10.addConstraint(Sketcher.Constraint("Coincident", 12, 2, 13, 1))
sketch10.addConstraint(Sketcher.Constraint("Coincident", 13, 2, 14, 1))
sketch10.addConstraint(Sketcher.Constraint("Coincident", 14, 2, 15, 1))
sketch10.addConstraint(Sketcher.Constraint("Coincident", 15, 2, 12, 1))
sketch10.addConstraint(Sketcher.Constraint("Coincident", 16, 2, 17, 1))
sketch10.addConstraint(Sketcher.Constraint("Coincident", 17, 2, 18, 1))
sketch10.addConstraint(Sketcher.Constraint("Coincident", 18, 2, 19, 1))
sketch10.addConstraint(Sketcher.Constraint("Coincident", 19, 2, 16, 1))
sketch10.addConstraint(Sketcher.Constraint("Horizontal", 0))
sketch10.addConstraint(Sketcher.Constraint("Horizontal", 2))
sketch10.addConstraint(Sketcher.Constraint("Horizontal", 5))
sketch10.addConstraint(Sketcher.Constraint("Horizontal", 7))
sketch10.addConstraint(Sketcher.Constraint("Horizontal", 9))
sketch10.addConstraint(Sketcher.Constraint("Horizontal", 11))
sketch10.addConstraint(Sketcher.Constraint("Horizontal", 13))
sketch10.addConstraint(Sketcher.Constraint("Horizontal", 15))
sketch10.addConstraint(Sketcher.Constraint("Horizontal", 17))
sketch10.addConstraint(Sketcher.Constraint("Horizontal", 19))
sketch10.addConstraint(Sketcher.Constraint("Parallel", 1, 3))
sketch10.addConstraint(Sketcher.Constraint("Parallel", 3, 4))
sketch10.addConstraint(Sketcher.Constraint("Parallel", 4, 6))
sketch10.addConstraint(Sketcher.Constraint("Parallel", 6, 8))
sketch10.addConstraint(Sketcher.Constraint("Parallel", 8, 10))
sketch10.addConstraint(Sketcher.Constraint("Parallel", 10, 12))
sketch10.addConstraint(Sketcher.Constraint("Parallel", 12, 14))
sketch10.addConstraint(Sketcher.Constraint("Parallel", 14, 16))
sketch10.addConstraint(Sketcher.Constraint("Parallel", 16, 18))
sketch10.addConstraint(Sketcher.Constraint("Horizontal", 3, 2, 4, 2))
sketch10.addConstraint(Sketcher.Constraint("Horizontal", 2, 2, 6, 2))
sketch10.addConstraint(Sketcher.Constraint("Horizontal", 5, 2, 8, 2))
sketch10.addConstraint(Sketcher.Constraint("Horizontal", 7, 2, 10, 2))
sketch10.addConstraint(Sketcher.Constraint("Horizontal", 9, 2, 12, 2))
sketch10.addConstraint(Sketcher.Constraint("Horizontal", 11, 2, 14, 2))
sketch10.addConstraint(Sketcher.Constraint("Horizontal", 13, 2, 16, 2))
sketch10.addConstraint(Sketcher.Constraint("Horizontal", 15, 2, 18, 2))
sketch10.addConstraint(Sketcher.Constraint("Equal", 2, 5))
sketch10.addConstraint(Sketcher.Constraint("Equal", 7, 9))
sketch10.addConstraint(Sketcher.Constraint("Equal", 11, 13))
sketch10.addConstraint(Sketcher.Constraint("Equal", 15, 17))
sketch10.addConstraint(Sketcher.Constraint("DistanceX", 0, 1, 0, 2, Q("2 mm")))
sketch10.addConstraint(Sketcher.Constraint("Angle", 1, Q("-70 deg")))
sketch10.addConstraint(Sketcher.Constraint("DistanceX", 0, 2, 4, 2, Q("3 mm")))
sketch10.addConstraint(Sketcher.Constraint("DistanceX", 5, 2, 8, 2, Q("3 mm")))
sketch10.addConstraint(Sketcher.Constraint("DistanceX", 9, 2, 12, 2, Q("3 mm")))
sketch10.addConstraint(Sketcher.Constraint("DistanceX", 13, 2, 16, 2, Q("3 mm")))
sketch10.addConstraint(Sketcher.Constraint("DistanceY", 1, 2, 0, 2, Q("12.34 mm")))
sketch10.addConstraint(Sketcher.Constraint("DistanceY", 0, 2, -1, 1, Q("80.15982 mm")))
sketch10.addConstraint(Sketcher.Constraint("DistanceX", 1, 2, -1, 1, Q("6.108242 mm")))
pad4 = body.newObject("PartDesign::Pad", "Pad003")
pad4.Profile = sketch10
pad4.Length = 3.1
pad4.Reversed = True

doc.recompute()
